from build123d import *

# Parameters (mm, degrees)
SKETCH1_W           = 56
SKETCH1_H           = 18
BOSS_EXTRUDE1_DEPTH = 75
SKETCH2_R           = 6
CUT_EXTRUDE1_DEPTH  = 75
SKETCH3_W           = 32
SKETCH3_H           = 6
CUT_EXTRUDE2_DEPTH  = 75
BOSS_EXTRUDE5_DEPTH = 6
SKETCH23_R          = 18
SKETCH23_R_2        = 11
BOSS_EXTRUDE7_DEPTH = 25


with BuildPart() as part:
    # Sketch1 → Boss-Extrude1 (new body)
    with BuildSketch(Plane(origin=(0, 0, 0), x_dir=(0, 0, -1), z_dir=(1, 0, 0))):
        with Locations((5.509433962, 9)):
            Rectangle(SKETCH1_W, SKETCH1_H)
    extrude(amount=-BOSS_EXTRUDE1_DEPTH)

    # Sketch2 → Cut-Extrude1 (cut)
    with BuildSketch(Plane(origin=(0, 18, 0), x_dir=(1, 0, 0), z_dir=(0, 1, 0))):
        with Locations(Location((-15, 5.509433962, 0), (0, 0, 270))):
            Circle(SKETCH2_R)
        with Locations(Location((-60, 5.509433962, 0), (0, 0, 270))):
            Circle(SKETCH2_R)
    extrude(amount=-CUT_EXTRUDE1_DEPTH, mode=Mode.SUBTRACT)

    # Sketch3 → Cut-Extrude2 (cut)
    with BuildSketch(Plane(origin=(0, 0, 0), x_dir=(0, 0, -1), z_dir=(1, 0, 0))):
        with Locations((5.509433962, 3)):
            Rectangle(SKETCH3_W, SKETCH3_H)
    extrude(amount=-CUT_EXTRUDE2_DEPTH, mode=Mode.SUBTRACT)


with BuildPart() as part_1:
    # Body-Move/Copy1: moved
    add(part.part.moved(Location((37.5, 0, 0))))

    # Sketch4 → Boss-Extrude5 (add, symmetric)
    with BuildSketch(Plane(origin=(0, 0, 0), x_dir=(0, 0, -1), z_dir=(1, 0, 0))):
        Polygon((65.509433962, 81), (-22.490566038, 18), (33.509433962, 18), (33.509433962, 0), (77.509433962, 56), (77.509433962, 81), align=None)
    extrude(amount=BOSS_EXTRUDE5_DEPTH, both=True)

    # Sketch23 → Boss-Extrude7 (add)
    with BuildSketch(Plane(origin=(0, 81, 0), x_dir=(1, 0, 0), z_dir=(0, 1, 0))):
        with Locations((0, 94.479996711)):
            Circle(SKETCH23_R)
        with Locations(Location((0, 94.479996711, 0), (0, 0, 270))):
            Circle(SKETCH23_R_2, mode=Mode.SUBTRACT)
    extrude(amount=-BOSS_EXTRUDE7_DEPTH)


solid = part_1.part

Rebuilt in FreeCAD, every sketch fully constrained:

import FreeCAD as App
import Part
import Sketcher
from FreeCAD import Vector
Q = App.Units.Quantity

doc = App.newDocument("Part")
body = doc.addObject("PartDesign::Body", "Body")

# Sketch on YZ plane
sketch1 = body.newObject("Sketcher::SketchObject", "Sketch")
sketch1.AttachmentSupport = (doc.getObject("YZ_Plane"), [""])
sketch1.MapMode = "FlatFace"
sketch1.addGeometry([
    Part.LineSegment(Vector(18, 22.490566, 0), Vector(0, 22.490566, 0)),
    Part.LineSegment(Vector(0, 22.490566, 0), Vector(0, -33.509434, 0)),
    Part.LineSegment(Vector(0, -33.509434, 0), Vector(18, -33.509434, 0)),
    Part.LineSegment(Vector(18, -33.509434, 0), Vector(18, 22.490566, 0)),
], False)
sketch1.addConstraint([
    Sketcher.Constraint("Coincident", 0, 2, 1, 1),
    Sketcher.Constraint("Coincident", 1, 2, 2, 1),
    Sketcher.Constraint("Coincident", 2, 2, 3, 1),
    Sketcher.Constraint("Coincident", 3, 2, 0, 1),
    Sketcher.Constraint("Horizontal", 0),
    Sketcher.Constraint("Vertical", 1),
    Sketcher.Constraint("Horizontal", 2),
    Sketcher.Constraint("Vertical", 3),
    Sketcher.Constraint("PointOnObject", 0, 2, -2),
    Sketcher.Constraint("DistanceX", 0, 2, 0, 1, Q("18 mm")),
    Sketcher.Constraint("DistanceY", 1, 2, 1, 1, Q("56 mm")),
    Sketcher.Constraint("DistanceY", -1, 1, 0, 2, Q("22.490566 mm")),
])
pad1 = body.newObject("PartDesign::Pad", "Pad")
pad1.Profile = sketch1
pad1.Length = 75
pad1.Reversed = True

# Sketch on XZ plane
sketch2 = body.newObject("Sketcher::SketchObject", "Sketch001")
sketch2.AttachmentSupport = (doc.getObject("XZ_Plane"), [""])
sketch2.MapMode = "FlatFace"
sketch2.AttachmentOffset = App.Placement(Vector(0, 0, -18), App.Rotation())
sketch2.addGeometry([
    Part.Circle(Vector(-15, -5.509434, 0), Vector(0, 0, 1), 6),
    Part.Circle(Vector(-60, -5.509434, 0), Vector(0, 0, 1), 6),
], False)
sketch2.addConstraint([
    Sketcher.Constraint("Equal", 0, 1),
    Sketcher.Constraint("Horizontal", 0, 3, 1, 3),
    Sketcher.Constraint("Diameter", 0, Q("12 mm")),
    Sketcher.Constraint("DistanceX", 0, 3, -1, 1, Q("15 mm")),
    Sketcher.Constraint("DistanceX", 1, 3, -1, 1, Q("60 mm")),
    Sketcher.Constraint("DistanceY", 0, 3, -1, 1, Q("5.509434 mm")),
])
pocket1 = body.newObject("PartDesign::Pocket", "Pocket")
pocket1.Profile = sketch2
pocket1.Length = 75
pocket1.Reversed = True

# Sketch on YZ plane
sketch3 = body.newObject("Sketcher::SketchObject", "Sketch002")
sketch3.AttachmentSupport = (doc.getObject("YZ_Plane"), [""])
sketch3.MapMode = "FlatFace"
sketch3.addGeometry([
    Part.LineSegment(Vector(6, 10.490566, 0), Vector(0, 10.490566, 0)),
    Part.LineSegment(Vector(0, 10.490566, 0), Vector(0, -21.509434, 0)),
    Part.LineSegment(Vector(0, -21.509434, 0), Vector(6, -21.509434, 0)),
    Part.LineSegment(Vector(6, -21.509434, 0), Vector(6, 10.490566, 0)),
], False)
sketch3.addConstraint([
    Sketcher.Constraint("Coincident", 0, 2, 1, 1),
    Sketcher.Constraint("Coincident", 1, 2, 2, 1),
    Sketcher.Constraint("Coincident", 2, 2, 3, 1),
    Sketcher.Constraint("Coincident", 3, 2, 0, 1),
    Sketcher.Constraint("Horizontal", 0),
    Sketcher.Constraint("Vertical", 1),
    Sketcher.Constraint("Horizontal", 2),
    Sketcher.Constraint("Vertical", 3),
    Sketcher.Constraint("PointOnObject", 0, 2, -2),
    Sketcher.Constraint("DistanceX", 0, 2, 0, 1, Q("6 mm")),
    Sketcher.Constraint("DistanceY", 1, 2, 1, 1, Q("32 mm")),
    Sketcher.Constraint("DistanceY", -1, 1, 0, 2, Q("10.490566 mm")),
])
pocket2 = body.newObject("PartDesign::Pocket", "Pocket001")
pocket2.Profile = sketch3
pocket2.Length = 75
body2 = doc.addObject("PartDesign::Body", "Body001")
doc.recompute()

body.Placement = App.Placement(Vector(37.5, 0, 0), App.Rotation(Vector(0, 0, 1), 0))
boolean = body2.newObject("PartDesign::Boolean", "Boolean")
boolean.Type = "Fuse"
boolean.addObjects([body])

# Sketch on YZ plane
sketch4 = body2.newObject("Sketcher::SketchObject", "Sketch003")
sketch4.AttachmentSupport = (doc.getObject("YZ_Plane001"), [""])
sketch4.MapMode = "FlatFace"
sketch4.addGeometry([
    Part.LineSegment(Vector(81, -65.509434, 0), Vector(18, 22.490566, 0)),  # 0
    Part.LineSegment(Vector(18, 22.490566, 0), Vector(18, -33.509434, 0)),  # 1
    Part.LineSegment(Vector(18, -33.509434, 0), Vector(0, -33.509434, 0)),  # 2
    Part.LineSegment(Vector(0, -33.509434, 0), Vector(56, -77.509434, 0)),  # 3
    Part.LineSegment(Vector(56, -77.509434, 0), Vector(81, -77.509434, 0)),  # 4
    Part.LineSegment(Vector(81, -77.509434, 0), Vector(81, -65.509434, 0)),  # 5
], False)
sketch4.addConstraint([
    Sketcher.Constraint("Coincident", 0, 2, 1, 1),
    Sketcher.Constraint("Coincident", 1, 2, 2, 1),
    Sketcher.Constraint("Coincident", 2, 2, 3, 1),
    Sketcher.Constraint("Coincident", 3, 2, 4, 1),
    Sketcher.Constraint("Coincident", 4, 2, 5, 1),
    Sketcher.Constraint("Coincident", 5, 2, 0, 1),
    Sketcher.Constraint("Vertical", 1),
    Sketcher.Constraint("Horizontal", 2),
    Sketcher.Constraint("Horizontal", 4),
    Sketcher.Constraint("Vertical", 5),
    Sketcher.Constraint("PointOnObject", 2, 2, -2),
    Sketcher.Constraint("DistanceX", 2, 2, 2, 1, Q("18 mm")),
    Sketcher.Constraint("DistanceX", 4, 1, 4, 2, Q("25 mm")),
    Sketcher.Constraint("DistanceY", 1, 2, 1, 1, Q("56 mm")),
    Sketcher.Constraint("DistanceY", 5, 1, 5, 2, Q("12 mm")),
    Sketcher.Constraint("DistanceX", -1, 1, 3, 2, Q("56 mm")),
    Sketcher.Constraint("DistanceY", 3, 2, 1, 2, Q("44 mm")),
    Sketcher.Constraint("DistanceY", -1, 1, 0, 2, Q("22.490566 mm")),
])
pad2 = body2.newObject("PartDesign::Pad", "Pad001")
pad2.Profile = sketch4
pad2.Length = 12
pad2.Midplane = True

# Sketch on XZ plane
sketch5 = body2.newObject("Sketcher::SketchObject", "Sketch004")
sketch5.AttachmentSupport = (doc.getObject("XZ_Plane001"), [""])
sketch5.MapMode = "FlatFace"
sketch5.AttachmentOffset = App.Placement(Vector(0, 0, -81), App.Rotation())
sketch5.addGeometry([
    Part.Circle(Vector(0, -94.479997, 0), Vector(0, 0, 1), 18),
    Part.Circle(Vector(0, -94.479997, 0), Vector(0, 0, 1), 11),
], False)
sketch5.addConstraint([
    Sketcher.Constraint("Coincident", 1, 3, 0, 3),
    Sketcher.Constraint("PointOnObject", 0, 3, -2),
    Sketcher.Constraint("Diameter", 0, Q("36 mm")),
    Sketcher.Constraint("Diameter", 1, Q("22 mm")),
    Sketcher.Constraint("DistanceY", 0, 3, -1, 1, Q("94.479997 mm")),
])
pad3 = body2.newObject("PartDesign::Pad", "Pad002")
pad3.Profile = sketch5
pad3.Length = 25

doc.recompute()
